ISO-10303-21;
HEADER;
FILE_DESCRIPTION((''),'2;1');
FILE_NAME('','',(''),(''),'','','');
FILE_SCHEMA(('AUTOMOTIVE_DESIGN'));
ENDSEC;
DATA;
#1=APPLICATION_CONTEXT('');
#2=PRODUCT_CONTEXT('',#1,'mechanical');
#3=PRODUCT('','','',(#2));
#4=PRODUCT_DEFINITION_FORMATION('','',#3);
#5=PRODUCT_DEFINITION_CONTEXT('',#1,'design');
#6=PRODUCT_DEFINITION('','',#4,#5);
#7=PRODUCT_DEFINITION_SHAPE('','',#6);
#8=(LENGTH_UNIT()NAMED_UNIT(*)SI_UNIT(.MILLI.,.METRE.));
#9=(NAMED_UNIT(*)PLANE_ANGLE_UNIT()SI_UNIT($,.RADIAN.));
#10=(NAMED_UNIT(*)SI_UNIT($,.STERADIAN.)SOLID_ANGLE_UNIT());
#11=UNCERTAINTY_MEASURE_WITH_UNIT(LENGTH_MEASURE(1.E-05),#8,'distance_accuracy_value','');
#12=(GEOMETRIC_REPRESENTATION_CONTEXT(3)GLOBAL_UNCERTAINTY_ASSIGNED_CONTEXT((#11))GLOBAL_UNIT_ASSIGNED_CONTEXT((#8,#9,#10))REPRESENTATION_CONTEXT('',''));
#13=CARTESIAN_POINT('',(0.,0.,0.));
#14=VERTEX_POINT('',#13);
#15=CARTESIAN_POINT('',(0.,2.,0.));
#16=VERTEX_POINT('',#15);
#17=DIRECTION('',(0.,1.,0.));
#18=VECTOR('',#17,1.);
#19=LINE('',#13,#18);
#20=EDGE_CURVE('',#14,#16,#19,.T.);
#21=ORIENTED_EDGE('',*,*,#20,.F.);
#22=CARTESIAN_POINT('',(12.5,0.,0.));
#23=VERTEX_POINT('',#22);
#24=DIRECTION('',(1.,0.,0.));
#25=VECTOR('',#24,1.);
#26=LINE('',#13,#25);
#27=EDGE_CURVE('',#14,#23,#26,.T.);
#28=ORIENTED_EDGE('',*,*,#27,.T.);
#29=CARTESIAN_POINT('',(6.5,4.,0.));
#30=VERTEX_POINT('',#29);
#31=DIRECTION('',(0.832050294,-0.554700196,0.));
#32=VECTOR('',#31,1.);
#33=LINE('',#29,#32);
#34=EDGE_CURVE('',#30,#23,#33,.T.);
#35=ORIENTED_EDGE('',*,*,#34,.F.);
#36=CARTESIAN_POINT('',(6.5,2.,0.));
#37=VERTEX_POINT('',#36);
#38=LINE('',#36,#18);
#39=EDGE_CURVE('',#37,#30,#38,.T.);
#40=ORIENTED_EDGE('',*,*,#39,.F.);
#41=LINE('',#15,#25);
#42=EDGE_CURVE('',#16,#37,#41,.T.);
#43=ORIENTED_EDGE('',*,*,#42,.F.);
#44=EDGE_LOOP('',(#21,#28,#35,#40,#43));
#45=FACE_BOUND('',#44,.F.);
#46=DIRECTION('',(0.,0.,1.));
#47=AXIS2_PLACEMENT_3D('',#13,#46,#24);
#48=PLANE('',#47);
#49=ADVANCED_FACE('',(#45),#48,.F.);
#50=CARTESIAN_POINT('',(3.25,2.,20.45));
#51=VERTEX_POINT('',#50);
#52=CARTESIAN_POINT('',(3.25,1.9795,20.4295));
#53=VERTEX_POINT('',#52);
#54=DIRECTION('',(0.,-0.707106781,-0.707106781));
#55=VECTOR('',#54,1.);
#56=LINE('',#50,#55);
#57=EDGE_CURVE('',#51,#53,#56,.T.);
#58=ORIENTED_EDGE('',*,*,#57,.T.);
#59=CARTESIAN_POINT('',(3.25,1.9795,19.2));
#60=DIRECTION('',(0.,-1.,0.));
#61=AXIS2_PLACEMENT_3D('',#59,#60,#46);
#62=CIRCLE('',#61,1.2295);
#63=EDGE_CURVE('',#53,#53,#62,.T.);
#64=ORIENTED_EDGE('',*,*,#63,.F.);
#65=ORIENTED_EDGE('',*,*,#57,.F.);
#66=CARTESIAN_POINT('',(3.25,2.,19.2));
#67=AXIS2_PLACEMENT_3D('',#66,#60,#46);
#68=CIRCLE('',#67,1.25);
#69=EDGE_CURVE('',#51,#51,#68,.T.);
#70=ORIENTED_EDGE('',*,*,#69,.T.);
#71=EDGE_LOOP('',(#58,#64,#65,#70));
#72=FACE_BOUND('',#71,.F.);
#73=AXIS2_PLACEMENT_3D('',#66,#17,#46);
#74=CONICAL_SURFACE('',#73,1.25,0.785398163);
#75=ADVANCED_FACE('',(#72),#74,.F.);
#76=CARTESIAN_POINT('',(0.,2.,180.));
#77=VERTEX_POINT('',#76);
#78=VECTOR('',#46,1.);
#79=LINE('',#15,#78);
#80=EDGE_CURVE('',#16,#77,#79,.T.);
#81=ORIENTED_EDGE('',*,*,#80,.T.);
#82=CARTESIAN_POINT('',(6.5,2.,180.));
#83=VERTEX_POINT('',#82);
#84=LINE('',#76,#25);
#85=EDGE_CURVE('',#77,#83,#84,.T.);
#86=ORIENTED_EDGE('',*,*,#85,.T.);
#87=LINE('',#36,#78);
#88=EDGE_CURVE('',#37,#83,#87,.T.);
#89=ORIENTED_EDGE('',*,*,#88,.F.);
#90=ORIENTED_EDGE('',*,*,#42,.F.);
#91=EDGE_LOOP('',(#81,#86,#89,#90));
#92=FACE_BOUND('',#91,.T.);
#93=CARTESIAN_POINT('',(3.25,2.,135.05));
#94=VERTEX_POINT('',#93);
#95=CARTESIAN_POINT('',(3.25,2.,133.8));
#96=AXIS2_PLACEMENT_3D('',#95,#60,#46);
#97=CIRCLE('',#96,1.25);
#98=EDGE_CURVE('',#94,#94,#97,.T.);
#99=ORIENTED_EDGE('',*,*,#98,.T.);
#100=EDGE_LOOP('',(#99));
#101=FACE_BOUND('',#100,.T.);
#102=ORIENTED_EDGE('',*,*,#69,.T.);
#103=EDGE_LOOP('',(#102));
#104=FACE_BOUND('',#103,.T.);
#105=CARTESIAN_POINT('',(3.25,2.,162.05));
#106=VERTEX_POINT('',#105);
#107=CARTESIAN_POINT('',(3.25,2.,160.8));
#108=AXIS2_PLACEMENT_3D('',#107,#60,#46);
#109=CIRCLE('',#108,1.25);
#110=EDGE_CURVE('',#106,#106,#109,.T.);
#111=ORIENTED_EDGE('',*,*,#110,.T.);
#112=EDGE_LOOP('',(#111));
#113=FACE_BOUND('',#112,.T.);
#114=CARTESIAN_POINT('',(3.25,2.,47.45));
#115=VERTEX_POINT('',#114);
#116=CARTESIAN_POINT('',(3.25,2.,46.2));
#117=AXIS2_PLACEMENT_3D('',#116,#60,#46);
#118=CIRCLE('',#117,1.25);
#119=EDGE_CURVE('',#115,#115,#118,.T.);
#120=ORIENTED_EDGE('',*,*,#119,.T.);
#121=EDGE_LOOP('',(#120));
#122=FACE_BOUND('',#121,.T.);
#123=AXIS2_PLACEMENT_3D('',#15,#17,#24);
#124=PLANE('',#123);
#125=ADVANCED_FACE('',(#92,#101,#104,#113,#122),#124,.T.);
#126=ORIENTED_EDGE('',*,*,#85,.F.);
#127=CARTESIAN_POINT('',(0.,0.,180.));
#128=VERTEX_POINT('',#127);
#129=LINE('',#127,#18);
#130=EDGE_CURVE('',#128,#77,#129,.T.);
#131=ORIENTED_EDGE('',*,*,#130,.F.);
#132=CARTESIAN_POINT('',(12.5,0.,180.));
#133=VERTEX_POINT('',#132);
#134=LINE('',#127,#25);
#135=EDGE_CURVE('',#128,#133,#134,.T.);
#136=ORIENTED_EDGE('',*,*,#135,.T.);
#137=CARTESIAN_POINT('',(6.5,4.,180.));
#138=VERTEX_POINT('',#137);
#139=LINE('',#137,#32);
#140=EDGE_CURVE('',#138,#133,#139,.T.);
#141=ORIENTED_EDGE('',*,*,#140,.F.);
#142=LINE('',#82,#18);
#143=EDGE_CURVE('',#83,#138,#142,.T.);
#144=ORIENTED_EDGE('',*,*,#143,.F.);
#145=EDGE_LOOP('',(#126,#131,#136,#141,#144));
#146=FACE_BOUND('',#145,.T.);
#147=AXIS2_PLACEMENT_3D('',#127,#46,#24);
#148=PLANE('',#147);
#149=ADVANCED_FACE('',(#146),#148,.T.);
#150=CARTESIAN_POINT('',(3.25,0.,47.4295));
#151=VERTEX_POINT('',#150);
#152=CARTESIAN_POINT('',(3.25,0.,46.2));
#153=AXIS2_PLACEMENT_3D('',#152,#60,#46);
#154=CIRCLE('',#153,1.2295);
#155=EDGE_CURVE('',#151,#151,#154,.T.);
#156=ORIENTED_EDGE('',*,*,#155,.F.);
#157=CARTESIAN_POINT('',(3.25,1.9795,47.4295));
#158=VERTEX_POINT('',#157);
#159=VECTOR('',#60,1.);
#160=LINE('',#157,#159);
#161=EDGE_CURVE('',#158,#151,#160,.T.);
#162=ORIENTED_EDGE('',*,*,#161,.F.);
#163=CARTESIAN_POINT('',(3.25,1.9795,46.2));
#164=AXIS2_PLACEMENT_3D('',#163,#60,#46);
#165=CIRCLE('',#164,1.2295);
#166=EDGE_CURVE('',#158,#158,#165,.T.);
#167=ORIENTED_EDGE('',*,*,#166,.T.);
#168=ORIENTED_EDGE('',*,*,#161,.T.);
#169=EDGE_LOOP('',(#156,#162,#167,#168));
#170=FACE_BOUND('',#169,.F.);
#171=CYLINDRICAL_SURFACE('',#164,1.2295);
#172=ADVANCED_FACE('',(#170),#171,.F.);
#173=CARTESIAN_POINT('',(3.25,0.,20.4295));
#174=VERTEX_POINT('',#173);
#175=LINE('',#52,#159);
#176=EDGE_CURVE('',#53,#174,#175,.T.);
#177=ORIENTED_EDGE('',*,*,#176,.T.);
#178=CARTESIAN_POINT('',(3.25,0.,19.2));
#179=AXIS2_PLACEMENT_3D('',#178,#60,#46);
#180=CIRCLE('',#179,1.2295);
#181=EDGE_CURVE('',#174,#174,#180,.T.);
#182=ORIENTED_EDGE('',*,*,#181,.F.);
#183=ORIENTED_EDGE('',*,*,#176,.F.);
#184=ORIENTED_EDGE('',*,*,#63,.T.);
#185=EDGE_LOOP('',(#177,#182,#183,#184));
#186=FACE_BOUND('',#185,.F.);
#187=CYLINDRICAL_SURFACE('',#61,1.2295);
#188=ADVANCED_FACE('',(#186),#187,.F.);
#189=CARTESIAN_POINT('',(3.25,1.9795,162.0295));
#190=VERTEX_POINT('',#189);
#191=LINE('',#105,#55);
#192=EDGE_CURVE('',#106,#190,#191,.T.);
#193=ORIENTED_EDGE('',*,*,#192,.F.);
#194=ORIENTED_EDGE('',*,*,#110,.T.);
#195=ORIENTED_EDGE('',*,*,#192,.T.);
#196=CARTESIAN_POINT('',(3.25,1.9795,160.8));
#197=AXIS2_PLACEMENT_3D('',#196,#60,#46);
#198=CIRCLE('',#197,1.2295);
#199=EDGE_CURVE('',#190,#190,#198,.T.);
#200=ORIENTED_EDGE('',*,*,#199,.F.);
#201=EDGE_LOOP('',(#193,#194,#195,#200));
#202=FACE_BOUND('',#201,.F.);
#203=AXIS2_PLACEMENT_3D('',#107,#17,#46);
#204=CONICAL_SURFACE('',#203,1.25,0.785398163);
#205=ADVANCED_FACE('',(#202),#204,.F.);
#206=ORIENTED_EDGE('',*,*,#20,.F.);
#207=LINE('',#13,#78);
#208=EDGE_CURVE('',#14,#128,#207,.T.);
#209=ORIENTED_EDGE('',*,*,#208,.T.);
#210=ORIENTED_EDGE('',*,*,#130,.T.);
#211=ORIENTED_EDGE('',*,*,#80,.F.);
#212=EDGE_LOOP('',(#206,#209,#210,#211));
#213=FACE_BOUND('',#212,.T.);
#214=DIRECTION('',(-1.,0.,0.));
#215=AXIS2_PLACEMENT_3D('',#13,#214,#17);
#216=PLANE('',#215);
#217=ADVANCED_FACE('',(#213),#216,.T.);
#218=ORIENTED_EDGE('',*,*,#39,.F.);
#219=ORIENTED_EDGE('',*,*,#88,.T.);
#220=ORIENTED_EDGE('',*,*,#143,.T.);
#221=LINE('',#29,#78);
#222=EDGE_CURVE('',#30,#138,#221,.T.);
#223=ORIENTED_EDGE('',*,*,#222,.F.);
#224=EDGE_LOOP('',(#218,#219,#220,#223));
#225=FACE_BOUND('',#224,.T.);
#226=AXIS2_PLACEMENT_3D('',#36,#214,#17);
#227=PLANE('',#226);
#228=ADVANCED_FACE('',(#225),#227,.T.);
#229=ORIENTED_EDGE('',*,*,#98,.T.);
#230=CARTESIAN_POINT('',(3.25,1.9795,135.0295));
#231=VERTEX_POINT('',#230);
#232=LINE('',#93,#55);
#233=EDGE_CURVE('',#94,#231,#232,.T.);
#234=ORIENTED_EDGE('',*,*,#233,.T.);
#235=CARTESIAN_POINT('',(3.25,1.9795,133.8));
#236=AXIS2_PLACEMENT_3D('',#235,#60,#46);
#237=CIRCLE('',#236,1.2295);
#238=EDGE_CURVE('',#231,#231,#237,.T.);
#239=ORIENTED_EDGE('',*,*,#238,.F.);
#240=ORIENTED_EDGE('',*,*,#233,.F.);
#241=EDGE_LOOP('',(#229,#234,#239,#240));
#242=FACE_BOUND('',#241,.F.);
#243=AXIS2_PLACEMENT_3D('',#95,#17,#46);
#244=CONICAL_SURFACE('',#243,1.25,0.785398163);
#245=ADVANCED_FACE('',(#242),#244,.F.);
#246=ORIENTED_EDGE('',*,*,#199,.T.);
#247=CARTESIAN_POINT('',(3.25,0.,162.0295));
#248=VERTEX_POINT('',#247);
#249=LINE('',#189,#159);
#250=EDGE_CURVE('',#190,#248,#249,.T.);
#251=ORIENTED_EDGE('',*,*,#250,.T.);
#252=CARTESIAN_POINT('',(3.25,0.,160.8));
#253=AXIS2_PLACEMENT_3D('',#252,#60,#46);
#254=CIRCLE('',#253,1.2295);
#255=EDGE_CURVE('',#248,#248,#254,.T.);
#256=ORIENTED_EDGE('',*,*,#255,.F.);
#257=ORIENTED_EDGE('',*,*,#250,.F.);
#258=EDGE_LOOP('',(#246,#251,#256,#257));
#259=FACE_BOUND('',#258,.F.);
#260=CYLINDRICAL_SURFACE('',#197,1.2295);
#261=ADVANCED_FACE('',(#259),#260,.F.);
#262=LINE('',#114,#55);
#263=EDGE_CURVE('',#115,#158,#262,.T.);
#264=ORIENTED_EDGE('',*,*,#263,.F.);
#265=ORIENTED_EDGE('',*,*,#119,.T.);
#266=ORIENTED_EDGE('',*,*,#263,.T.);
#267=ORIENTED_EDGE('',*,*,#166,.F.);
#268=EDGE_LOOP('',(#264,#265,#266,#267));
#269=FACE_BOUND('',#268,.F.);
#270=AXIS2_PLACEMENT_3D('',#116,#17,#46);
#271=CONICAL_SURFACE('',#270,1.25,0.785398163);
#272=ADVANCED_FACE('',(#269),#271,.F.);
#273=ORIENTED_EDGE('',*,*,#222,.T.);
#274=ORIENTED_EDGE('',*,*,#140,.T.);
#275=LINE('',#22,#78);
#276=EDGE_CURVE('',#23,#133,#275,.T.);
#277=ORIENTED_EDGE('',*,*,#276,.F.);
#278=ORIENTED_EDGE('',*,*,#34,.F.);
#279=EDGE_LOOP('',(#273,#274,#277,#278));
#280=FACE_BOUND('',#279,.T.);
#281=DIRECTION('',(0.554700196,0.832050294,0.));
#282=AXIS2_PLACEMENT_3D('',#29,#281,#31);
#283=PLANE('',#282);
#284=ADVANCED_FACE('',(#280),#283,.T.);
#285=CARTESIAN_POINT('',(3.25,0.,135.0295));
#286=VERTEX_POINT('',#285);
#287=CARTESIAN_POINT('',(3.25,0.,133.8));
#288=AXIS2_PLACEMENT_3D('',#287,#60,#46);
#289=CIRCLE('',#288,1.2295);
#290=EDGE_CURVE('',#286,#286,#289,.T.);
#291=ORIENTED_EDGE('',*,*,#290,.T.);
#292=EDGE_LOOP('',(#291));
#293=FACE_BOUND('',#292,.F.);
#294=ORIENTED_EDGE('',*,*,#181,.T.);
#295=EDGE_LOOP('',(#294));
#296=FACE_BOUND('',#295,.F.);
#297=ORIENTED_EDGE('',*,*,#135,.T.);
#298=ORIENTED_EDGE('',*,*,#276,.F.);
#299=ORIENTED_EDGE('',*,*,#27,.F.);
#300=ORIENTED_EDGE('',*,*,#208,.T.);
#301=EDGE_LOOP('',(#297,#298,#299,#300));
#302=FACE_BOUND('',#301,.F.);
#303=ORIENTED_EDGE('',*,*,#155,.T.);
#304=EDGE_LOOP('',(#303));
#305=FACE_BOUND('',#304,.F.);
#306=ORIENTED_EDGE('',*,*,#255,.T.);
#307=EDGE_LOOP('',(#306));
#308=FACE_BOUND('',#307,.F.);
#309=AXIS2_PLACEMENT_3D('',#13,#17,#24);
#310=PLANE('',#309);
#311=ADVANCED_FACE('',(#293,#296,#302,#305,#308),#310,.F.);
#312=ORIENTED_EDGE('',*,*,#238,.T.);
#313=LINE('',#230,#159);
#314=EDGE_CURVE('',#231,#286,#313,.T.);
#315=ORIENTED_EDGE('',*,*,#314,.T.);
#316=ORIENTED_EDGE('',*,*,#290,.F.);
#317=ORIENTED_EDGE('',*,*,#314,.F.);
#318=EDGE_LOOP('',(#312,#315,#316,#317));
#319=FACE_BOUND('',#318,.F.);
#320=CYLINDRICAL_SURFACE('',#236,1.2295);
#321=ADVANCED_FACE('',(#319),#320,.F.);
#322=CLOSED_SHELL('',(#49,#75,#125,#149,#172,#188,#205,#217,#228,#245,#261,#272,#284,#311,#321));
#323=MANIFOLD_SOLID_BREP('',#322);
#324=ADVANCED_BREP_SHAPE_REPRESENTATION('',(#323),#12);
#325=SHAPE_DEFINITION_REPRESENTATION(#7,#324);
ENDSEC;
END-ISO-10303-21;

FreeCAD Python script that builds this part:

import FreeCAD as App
import Part
import Sketcher

doc = App.newDocument("Part")
body = doc.addObject("PartDesign::Body", "Body")

# Sketch on XY plane
sketch1 = body.newObject("Sketcher::SketchObject", "Sketch")
sketch1.AttachmentSupport = (doc.getObject("XY_Plane"), [""])
sketch1.MapMode = "FlatFace"
sketch1.addGeometry([
    Part.LineSegment(App.Vector(0, 2, 0), App.Vector(0, 0, 0)),  # 0
    Part.LineSegment(App.Vector(0, 0, 0), App.Vector(12.5, 0, 0)),  # 1
    Part.LineSegment(App.Vector(12.5, 0, 0), App.Vector(6.5, 4, 0)),  # 2
    Part.LineSegment(App.Vector(6.5, 4, 0), App.Vector(6.5, 2, 0)),  # 3
    Part.LineSegment(App.Vector(6.5, 2, 0), App.Vector(0, 2, 0)),  # 4
], False)
sketch1.addConstraint([
    Sketcher.Constraint("Coincident", 0, 2, 1, 1),
    Sketcher.Constraint("Coincident", 1, 2, 2, 1),
    Sketcher.Constraint("Coincident", 2, 2, 3, 1),
    Sketcher.Constraint("Coincident", 3, 2, 4, 1),
    Sketcher.Constraint("Coincident", 4, 2, 0, 1),
    Sketcher.Constraint("Vertical", 0),
    Sketcher.Constraint("Horizontal", 1),
    Sketcher.Constraint("Vertical", 3),
    Sketcher.Constraint("Horizontal", 4),
    Sketcher.Constraint("Coincident", 0, 2, -1, 1),
    Sketcher.Constraint("Equal", 0, 3),
    Sketcher.Constraint("DistanceY", 0, 2, 0, 1, 2.0),
    Sketcher.Constraint("DistanceX", 1, 1, 1, 2, 12.5),
    Sketcher.Constraint("DistanceX", 4, 2, 4, 1, 6.5),
])
pad1 = body.newObject("PartDesign::Pad", "Pad")
pad1.Profile = sketch1
pad1.Length = 180

# Sketch on XZ plane
sketch2 = body.newObject("Sketcher::SketchObject", "Sketch001")
sketch2.AttachmentSupport = (doc.getObject("XZ_Plane"), [""])
sketch2.MapMode = "FlatFace"
sketch2.AttachmentOffset = App.Placement(App.Vector(0, 0, -2), App.Rotation())
sketch2.addGeometry([
    Part.Circle(App.Vector(3.2, 160.8, 0), App.Vector(0, 0, 1), 1.2),
    Part.Circle(App.Vector(3.2, 133.8, 0), App.Vector(0, 0, 1), 1.2),
    Part.Circle(App.Vector(3.2, 46.2, 0), App.Vector(0, 0, 1), 1.2),
    Part.Circle(App.Vector(3.2, 19.2, 0), App.Vector(0, 0, 1), 1.2),
], False)
sketch2.addConstraint([
    Sketcher.Constraint("Equal", 0, 1),
    Sketcher.Constraint("Equal", 1, 2),
    Sketcher.Constraint("Equal", 2, 3),
    Sketcher.Constraint("Vertical", 0, 3, 1, 3),
    Sketcher.Constraint("Vertical", 1, 3, 2, 3),
    Sketcher.Constraint("Vertical", 2, 3, 3, 3),
    Sketcher.Constraint("Diameter", 0, 2.459),
    Sketcher.Constraint("DistanceY", 1, 3, 0, 3, 27.0),
    Sketcher.Constraint("DistanceY", 3, 3, 2, 3, 27.0),
    Sketcher.Constraint("DistanceY", -1, 1, 0, 3, 160.8),
    Sketcher.Constraint("DistanceY", -1, 1, 2, 3, 46.2),
    Sketcher.Constraint("DistanceX", -1, 1, 0, 3, 3.25),
])
doc.recompute()
hole = body.newObject("PartDesign::Hole", "Hole")
hole.Profile = sketch2
hole.ThreadType = "None"
hole.Diameter = 2.459
hole.DepthType = "Dimension"
hole.Depth = 2
hole.DrillPoint = "Flat"
hole.HoleCutType = "Countersink"
hole.HoleCutDiameter = 2.5
hole.HoleCutCountersinkAngle = 90
hole.Reversed = True

doc.recompute()
